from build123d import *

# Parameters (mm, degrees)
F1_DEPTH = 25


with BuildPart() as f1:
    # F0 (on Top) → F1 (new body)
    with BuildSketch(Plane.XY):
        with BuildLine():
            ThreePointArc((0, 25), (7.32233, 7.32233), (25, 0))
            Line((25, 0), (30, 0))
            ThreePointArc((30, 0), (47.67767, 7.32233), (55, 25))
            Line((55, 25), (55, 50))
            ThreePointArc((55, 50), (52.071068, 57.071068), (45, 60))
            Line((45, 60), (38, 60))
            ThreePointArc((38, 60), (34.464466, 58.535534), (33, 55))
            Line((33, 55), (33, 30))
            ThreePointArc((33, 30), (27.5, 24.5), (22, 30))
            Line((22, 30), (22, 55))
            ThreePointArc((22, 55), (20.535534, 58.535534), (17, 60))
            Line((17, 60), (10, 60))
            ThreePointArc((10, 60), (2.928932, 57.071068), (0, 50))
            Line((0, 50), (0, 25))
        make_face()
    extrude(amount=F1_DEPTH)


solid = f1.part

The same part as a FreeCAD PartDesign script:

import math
import FreeCAD as App
import Part
import Sketcher
from FreeCAD import Vector
Q = App.Units.Quantity

doc = App.newDocument("Part")
body = doc.addObject("PartDesign::Body", "Body")

# Sketch on XY plane
sketch1 = body.newObject("Sketcher::SketchObject", "Sketch")
sketch1.AttachmentSupport = (doc.getObject("XY_Plane"), [""])
sketch1.MapMode = "FlatFace"
sketch1.addGeometry(Part.ArcOfCircle(Part.Circle(Vector(25, 25, 0), Vector(0, 0, 1), 25), math.radians(180), math.radians(270)), False)
sketch1.addGeometry(Part.LineSegment(Vector(25, 0, 0), Vector(30, 0, 0)), False)
sketch1.addGeometry(Part.ArcOfCircle(Part.Circle(Vector(30, 25, 0), Vector(0, 0, 1), 25), math.radians(-90), math.radians(0)), False)
sketch1.addGeometry(Part.LineSegment(Vector(55, 25, 0), Vector(55, 50, 0)), False)
sketch1.addGeometry(Part.ArcOfCircle(Part.Circle(Vector(45, 50, 0), Vector(0, 0, 1), 10), math.radians(0), math.radians(90)), False)
sketch1.addGeometry(Part.LineSegment(Vector(45, 60, 0), Vector(38, 60, 0)), False)
sketch1.addGeometry(Part.ArcOfCircle(Part.Circle(Vector(38, 55, 0), Vector(0, 0, 1), 5), math.radians(90), math.radians(180)), False)
sketch1.addGeometry(Part.LineSegment(Vector(33, 55, 0), Vector(33, 30, 0)), False)
sketch1.addGeometry(Part.ArcOfCircle(Part.Circle(Vector(27.5, 30, 0), Vector(0, 0, 1), 5.5), math.radians(180), math.radians(360)), False)
sketch1.addGeometry(Part.LineSegment(Vector(22, 30, 0), Vector(22, 55, 0)), False)
sketch1.addGeometry(Part.ArcOfCircle(Part.Circle(Vector(17, 55, 0), Vector(0, 0, 1), 5), math.radians(0), math.radians(90)), False)
sketch1.addGeometry(Part.LineSegment(Vector(17, 60, 0), Vector(10, 60, 0)), False)
sketch1.addGeometry(Part.ArcOfCircle(Part.Circle(Vector(10, 50, 0), Vector(0, 0, 1), 10), math.radians(90), math.radians(180)), False)
sketch1.addGeometry(Part.LineSegment(Vector(0, 50, 0), Vector(0, 25, 0)), False)
sketch1.addConstraint(Sketcher.Constraint("Tangent", 0, 2, 1, 1))
sketch1.addConstraint(Sketcher.Constraint("Tangent", 1, 2, 2, 1))
sketch1.addConstraint(Sketcher.Constraint("Tangent", 2, 2, 3, 1))
sketch1.addConstraint(Sketcher.Constraint("Tangent", 3, 2, 4, 1))
sketch1.addConstraint(Sketcher.Constraint("Tangent", 4, 2, 5, 1))
sketch1.addConstraint(Sketcher.Constraint("Tangent", 5, 2, 6, 1))
sketch1.addConstraint(Sketcher.Constraint("Tangent", 6, 2, 7, 1))
sketch1.addConstraint(Sketcher.Constraint("Tangent", 7, 2, 8, 2))
sketch1.addConstraint(Sketcher.Constraint("Tangent", 8, 1, 9, 1))
sketch1.addConstraint(Sketcher.Constraint("Tangent", 9, 2, 10, 1))
sketch1.addConstraint(Sketcher.Constraint("Tangent", 10, 2, 11, 1))
sketch1.addConstraint(Sketcher.Constraint("Tangent", 11, 2, 12, 1))
sketch1.addConstraint(Sketcher.Constraint("Tangent", 12, 2, 13, 1))
sketch1.addConstraint(Sketcher.Constraint("Tangent", 13, 2, 0, 1))
sketch1.addConstraint(Sketcher.Constraint("Horizontal", 1))
sketch1.addConstraint(Sketcher.Constraint("Vertical", 3))
sketch1.addConstraint(Sketcher.Constraint("Horizontal", 5))
sketch1.addConstraint(Sketcher.Constraint("Vertical", 7))
sketch1.addConstraint(Sketcher.Constraint("Vertical", 9))
sketch1.addConstraint(Sketcher.Constraint("Horizontal", 11))
sketch1.addConstraint(Sketcher.Constraint("Vertical", 13))
sketch1.addConstraint(Sketcher.Constraint("Equal", 0, 2))
sketch1.addConstraint(Sketcher.Constraint("Equal", 6, 10))
sketch1.addConstraint(Sketcher.Constraint("Equal", 4, 12))
sketch1.addConstraint(Sketcher.Constraint("PointOnObject", 0, 2, -1))
sketch1.addConstraint(Sketcher.Constraint("PointOnObject", 12, 2, -2))
sketch1.addConstraint(Sketcher.Constraint("Horizontal", 6, 3, 10, 3))
sketch1.addConstraint(Sketcher.Constraint("Equal", 5, 11))
sketch1.addConstraint(Sketcher.Constraint("Equal", 3, 7))
sketch1.addConstraint(Sketcher.Constraint("Radius", 0, Q("24.999998 mm")))
sketch1.addConstraint(Sketcher.Constraint("Radius", 4, Q("9.999999 mm")))
sketch1.addConstraint(Sketcher.Constraint("Radius", 6, Q("5 mm")))
sketch1.addConstraint(Sketcher.Constraint("Radius", 8, Q("5.5 mm")))
sketch1.addConstraint(Sketcher.Constraint("DistanceX", 1, 1, 1, 2, Q("5 mm")))
sketch1.addConstraint(Sketcher.Constraint("DistanceY", 3, 1, 3, 2, Q("25 mm")))
pad1 = body.newObject("PartDesign::Pad", "Pad")
pad1.Profile = sketch1
pad1.Length = 25

doc.recompute()
